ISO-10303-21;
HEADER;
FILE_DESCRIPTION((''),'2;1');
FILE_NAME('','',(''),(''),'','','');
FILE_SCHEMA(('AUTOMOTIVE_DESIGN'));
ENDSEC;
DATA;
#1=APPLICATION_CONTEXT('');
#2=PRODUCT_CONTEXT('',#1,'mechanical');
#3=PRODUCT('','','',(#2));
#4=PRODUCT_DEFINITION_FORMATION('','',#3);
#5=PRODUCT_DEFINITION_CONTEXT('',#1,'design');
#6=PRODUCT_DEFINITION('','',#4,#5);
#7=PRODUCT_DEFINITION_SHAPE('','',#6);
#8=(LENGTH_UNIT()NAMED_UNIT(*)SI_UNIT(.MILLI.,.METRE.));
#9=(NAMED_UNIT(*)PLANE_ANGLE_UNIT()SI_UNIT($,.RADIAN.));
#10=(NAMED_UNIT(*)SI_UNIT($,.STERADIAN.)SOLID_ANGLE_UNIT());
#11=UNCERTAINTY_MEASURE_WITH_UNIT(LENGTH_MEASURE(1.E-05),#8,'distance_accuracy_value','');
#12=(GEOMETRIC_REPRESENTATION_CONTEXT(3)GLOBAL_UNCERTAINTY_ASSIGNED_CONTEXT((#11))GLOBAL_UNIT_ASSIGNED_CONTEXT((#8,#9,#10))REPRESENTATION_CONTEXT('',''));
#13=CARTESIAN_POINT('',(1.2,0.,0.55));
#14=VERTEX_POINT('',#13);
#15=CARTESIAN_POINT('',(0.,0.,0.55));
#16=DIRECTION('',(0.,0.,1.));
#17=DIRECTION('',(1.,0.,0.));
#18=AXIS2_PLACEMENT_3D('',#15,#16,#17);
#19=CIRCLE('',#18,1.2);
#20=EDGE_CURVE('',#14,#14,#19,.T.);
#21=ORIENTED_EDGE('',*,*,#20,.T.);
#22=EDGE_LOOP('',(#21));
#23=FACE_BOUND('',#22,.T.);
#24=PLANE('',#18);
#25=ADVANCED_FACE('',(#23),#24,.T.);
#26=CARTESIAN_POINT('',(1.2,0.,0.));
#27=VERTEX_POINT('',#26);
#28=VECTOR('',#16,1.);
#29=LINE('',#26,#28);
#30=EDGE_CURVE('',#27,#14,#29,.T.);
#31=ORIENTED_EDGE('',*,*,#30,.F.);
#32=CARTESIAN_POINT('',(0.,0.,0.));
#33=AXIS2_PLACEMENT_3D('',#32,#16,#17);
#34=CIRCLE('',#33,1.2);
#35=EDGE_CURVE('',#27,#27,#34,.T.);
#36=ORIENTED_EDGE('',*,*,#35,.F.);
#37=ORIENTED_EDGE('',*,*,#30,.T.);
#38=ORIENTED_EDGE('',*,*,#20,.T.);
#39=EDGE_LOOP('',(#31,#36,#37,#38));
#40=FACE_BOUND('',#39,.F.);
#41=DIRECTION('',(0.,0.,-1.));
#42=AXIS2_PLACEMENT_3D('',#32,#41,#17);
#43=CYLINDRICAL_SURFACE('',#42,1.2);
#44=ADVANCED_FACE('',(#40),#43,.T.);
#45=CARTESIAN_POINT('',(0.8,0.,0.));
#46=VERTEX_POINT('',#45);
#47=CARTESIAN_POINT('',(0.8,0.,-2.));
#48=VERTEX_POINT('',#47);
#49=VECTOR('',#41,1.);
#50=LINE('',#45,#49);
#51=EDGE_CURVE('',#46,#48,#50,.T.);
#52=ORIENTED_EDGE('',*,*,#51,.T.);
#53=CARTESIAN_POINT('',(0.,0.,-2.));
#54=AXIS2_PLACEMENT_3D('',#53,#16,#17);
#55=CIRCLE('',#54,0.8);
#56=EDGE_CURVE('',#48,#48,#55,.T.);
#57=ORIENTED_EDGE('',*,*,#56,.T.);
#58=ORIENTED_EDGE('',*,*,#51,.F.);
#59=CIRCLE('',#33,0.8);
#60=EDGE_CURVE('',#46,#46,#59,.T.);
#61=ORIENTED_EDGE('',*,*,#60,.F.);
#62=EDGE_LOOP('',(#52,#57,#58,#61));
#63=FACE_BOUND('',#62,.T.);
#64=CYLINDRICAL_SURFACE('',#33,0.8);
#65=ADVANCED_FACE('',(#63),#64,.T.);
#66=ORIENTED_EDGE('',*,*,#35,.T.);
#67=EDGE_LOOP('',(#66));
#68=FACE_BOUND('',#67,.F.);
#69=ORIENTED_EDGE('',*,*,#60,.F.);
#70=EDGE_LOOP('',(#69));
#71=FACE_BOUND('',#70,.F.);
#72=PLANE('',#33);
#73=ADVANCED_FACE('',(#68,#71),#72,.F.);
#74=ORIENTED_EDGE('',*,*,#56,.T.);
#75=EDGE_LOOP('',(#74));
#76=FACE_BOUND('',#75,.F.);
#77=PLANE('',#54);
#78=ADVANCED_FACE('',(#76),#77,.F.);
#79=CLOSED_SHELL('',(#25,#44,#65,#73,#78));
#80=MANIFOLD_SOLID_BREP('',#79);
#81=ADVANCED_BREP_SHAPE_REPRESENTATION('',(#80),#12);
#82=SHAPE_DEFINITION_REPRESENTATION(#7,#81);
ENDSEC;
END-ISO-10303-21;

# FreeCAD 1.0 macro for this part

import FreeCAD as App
import Part
import Sketcher

V = App.Vector
Q = App.Units.Quantity

doc = App.newDocument("Part")
body = doc.addObject("PartDesign::Body", "Body")

# Sketch on XY plane
sketch1 = doc.addObject("Sketcher::SketchObject", "Sketch")
body.addObject(sketch1)
sketch1.AttachmentSupport = (doc.XY_Plane, [""])
sketch1.MapMode = "FlatFace"
sketch1.addGeometry(Part.Circle(V(0, 0, 0), V(0, 0, 1), 1.2), False)
sketch1.addConstraint(Sketcher.Constraint("Coincident", 0, 3, -1, 1))
sketch1.addConstraint(Sketcher.Constraint("Diameter", 0, Q("2.4 mm")))
pad1 = doc.addObject("PartDesign::Pad", "Pad")
body.addObject(pad1)
pad1.Profile = sketch1
pad1.Length = 0.55

# Sketch on XY plane
sketch2 = doc.addObject("Sketcher::SketchObject", "Sketch001")
body.addObject(sketch2)
sketch2.AttachmentSupport = (doc.XY_Plane, [""])
sketch2.MapMode = "FlatFace"
sketch2.addGeometry(Part.Circle(V(0, 0, 0), V(0, 0, 1), 0.8), False)
sketch2.addConstraint(Sketcher.Constraint("Coincident", 0, 3, -1, 1))
sketch2.addConstraint(Sketcher.Constraint("Diameter", 0, Q("1.6 mm")))
pad2 = doc.addObject("PartDesign::Pad", "Pad001")
body.addObject(pad2)
pad2.Profile = sketch2
pad2.Length = 2
pad2.Reversed = True

doc.recompute()
